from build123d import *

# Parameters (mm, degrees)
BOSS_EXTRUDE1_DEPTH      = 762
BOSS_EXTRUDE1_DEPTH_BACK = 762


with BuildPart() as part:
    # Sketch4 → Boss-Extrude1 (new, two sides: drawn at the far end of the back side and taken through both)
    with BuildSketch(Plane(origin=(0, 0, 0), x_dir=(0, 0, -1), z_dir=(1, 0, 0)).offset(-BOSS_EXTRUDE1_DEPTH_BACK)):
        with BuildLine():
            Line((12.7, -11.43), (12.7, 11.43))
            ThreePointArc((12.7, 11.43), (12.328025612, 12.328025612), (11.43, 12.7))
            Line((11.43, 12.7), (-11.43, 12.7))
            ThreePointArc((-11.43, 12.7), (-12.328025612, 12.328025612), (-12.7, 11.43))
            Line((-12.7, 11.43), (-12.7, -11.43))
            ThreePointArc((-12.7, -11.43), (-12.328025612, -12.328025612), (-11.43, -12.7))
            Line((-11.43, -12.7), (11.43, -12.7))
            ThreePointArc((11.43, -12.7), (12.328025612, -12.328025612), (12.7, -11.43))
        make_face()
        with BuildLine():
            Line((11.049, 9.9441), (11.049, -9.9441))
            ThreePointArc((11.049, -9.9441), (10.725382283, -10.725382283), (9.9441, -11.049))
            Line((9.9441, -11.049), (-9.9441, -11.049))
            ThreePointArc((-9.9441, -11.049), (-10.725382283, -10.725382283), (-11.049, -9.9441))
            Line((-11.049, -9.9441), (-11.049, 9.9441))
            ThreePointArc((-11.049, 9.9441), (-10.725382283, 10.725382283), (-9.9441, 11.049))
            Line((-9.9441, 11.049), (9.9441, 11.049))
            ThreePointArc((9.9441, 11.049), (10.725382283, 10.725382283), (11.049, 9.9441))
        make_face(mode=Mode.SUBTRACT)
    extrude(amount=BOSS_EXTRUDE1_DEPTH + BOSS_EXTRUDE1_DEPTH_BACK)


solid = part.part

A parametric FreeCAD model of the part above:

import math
import FreeCAD as App
import Part
import Sketcher
Q = App.Units.Quantity

doc = App.newDocument("Part")
body = doc.addObject("PartDesign::Body", "Body")

# Sketch on YZ plane
sketch1 = body.newObject("Sketcher::SketchObject", "Sketch")
sketch1.AttachmentSupport = (doc.getObject("YZ_Plane"), [""])
sketch1.MapMode = "FlatFace"
sketch1.addGeometry([
    Part.LineSegment(App.Vector(-11.4, -12.7, 0), App.Vector(11.4, -12.7, 0)),  # 0
    Part.ArcOfCircle(Part.Circle(App.Vector(11.4, -11.4, 0), App.Vector(0, 0, 1), 1.3), math.radians(-90), math.radians(0)),  # 1
    Part.LineSegment(App.Vector(12.7, -11.4, 0), App.Vector(12.7, 11.4, 0)),  # 2
    Part.ArcOfCircle(Part.Circle(App.Vector(11.4, 11.4, 0), App.Vector(0, 0, 1), 1.3), math.radians(0), math.radians(90)),  # 3
    Part.LineSegment(App.Vector(11.4, 12.7, 0), App.Vector(-11.4, 12.7, 0)),  # 4
    Part.ArcOfCircle(Part.Circle(App.Vector(-11.4, 11.4, 0), App.Vector(0, 0, 1), 1.3), math.radians(90), math.radians(180)),  # 5
    Part.LineSegment(App.Vector(-12.7, 11.4, 0), App.Vector(-12.7, -11.4, 0)),  # 6
    Part.ArcOfCircle(Part.Circle(App.Vector(-11.4, -11.4, 0), App.Vector(0, 0, 1), 1.3), math.radians(180), math.radians(270)),  # 7
    Part.ArcOfCircle(Part.Circle(App.Vector(9.9, -9.9, 0), App.Vector(0, 0, 1), 1.1), math.radians(-90), math.radians(0)),  # 8
    Part.LineSegment(App.Vector(9.9, -11, 0), App.Vector(-9.9, -11, 0)),  # 9
    Part.ArcOfCircle(Part.Circle(App.Vector(-9.9, -9.9, 0), App.Vector(0, 0, 1), 1.1), math.radians(180), math.radians(270)),  # 10
    Part.LineSegment(App.Vector(-11, -9.9, 0), App.Vector(-11, 9.9, 0)),  # 11
    Part.ArcOfCircle(Part.Circle(App.Vector(-9.9, 9.9, 0), App.Vector(0, 0, 1), 1.1), math.radians(90), math.radians(180)),  # 12
    Part.LineSegment(App.Vector(-9.9, 11, 0), App.Vector(9.9, 11, 0)),  # 13
    Part.ArcOfCircle(Part.Circle(App.Vector(9.9, 9.9, 0), App.Vector(0, 0, 1), 1.1), math.radians(0), math.radians(90)),  # 14
    Part.LineSegment(App.Vector(11, 9.9, 0), App.Vector(11, -9.9, 0)),  # 15
], False)
sketch1.addConstraint([
    Sketcher.Constraint("Tangent", 0, 2, 1, 1),
    Sketcher.Constraint("Tangent", 1, 2, 2, 1),
    Sketcher.Constraint("Tangent", 2, 2, 3, 1),
    Sketcher.Constraint("Tangent", 3, 2, 4, 1),
    Sketcher.Constraint("Tangent", 4, 2, 5, 1),
    Sketcher.Constraint("Tangent", 5, 2, 6, 1),
    Sketcher.Constraint("Tangent", 6, 2, 7, 1),
    Sketcher.Constraint("Tangent", 7, 2, 0, 1),
    Sketcher.Constraint("Tangent", 8, 1, 9, 1),
    Sketcher.Constraint("Tangent", 9, 2, 10, 2),
    Sketcher.Constraint("Tangent", 10, 1, 11, 1),
    Sketcher.Constraint("Tangent", 11, 2, 12, 2),
    Sketcher.Constraint("Tangent", 12, 1, 13, 1),
    Sketcher.Constraint("Tangent", 13, 2, 14, 2),
    Sketcher.Constraint("Tangent", 14, 1, 15, 1),
    Sketcher.Constraint("Tangent", 15, 2, 8, 2),
    Sketcher.Constraint("Horizontal", 0),
    Sketcher.Constraint("Vertical", 2),
    Sketcher.Constraint("Horizontal", 4),
    Sketcher.Constraint("Vertical", 6),
    Sketcher.Constraint("Horizontal", 9),
    Sketcher.Constraint("Vertical", 11),
    Sketcher.Constraint("Horizontal", 13),
    Sketcher.Constraint("Vertical", 15),
    Sketcher.Constraint("Equal", 1, 3),
    Sketcher.Constraint("Equal", 3, 5),
    Sketcher.Constraint("Equal", 5, 7),
    Sketcher.Constraint("Equal", 8, 10),
    Sketcher.Constraint("Equal", 10, 12),
    Sketcher.Constraint("Equal", 12, 14),
    Sketcher.Constraint("Symmetric", 1, 3, 5, 3, -1, 1),
    Sketcher.Constraint("Symmetric", 8, 3, 12, 3, -1, 1),
    Sketcher.Constraint("Equal", 4, 2),
    Sketcher.Constraint("Equal", 13, 11),
    Sketcher.Constraint("Radius", 1, Q("0.05 in")),
    Sketcher.Constraint("DistanceX", 0, 1, 0, 2, Q("0.9 in")),
    Sketcher.Constraint("Radius", 8, Q("0.0435 in")),
    Sketcher.Constraint("DistanceX", 9, 2, 9, 1, Q("0.783 in")),
])
pad1 = body.newObject("PartDesign::Pad", "Pad")
pad1.Profile = sketch1
pad1.Type = "TwoLengths"
pad1.Length = Q("30 in")
pad1.Length2 = Q("30 in")

doc.recompute()
